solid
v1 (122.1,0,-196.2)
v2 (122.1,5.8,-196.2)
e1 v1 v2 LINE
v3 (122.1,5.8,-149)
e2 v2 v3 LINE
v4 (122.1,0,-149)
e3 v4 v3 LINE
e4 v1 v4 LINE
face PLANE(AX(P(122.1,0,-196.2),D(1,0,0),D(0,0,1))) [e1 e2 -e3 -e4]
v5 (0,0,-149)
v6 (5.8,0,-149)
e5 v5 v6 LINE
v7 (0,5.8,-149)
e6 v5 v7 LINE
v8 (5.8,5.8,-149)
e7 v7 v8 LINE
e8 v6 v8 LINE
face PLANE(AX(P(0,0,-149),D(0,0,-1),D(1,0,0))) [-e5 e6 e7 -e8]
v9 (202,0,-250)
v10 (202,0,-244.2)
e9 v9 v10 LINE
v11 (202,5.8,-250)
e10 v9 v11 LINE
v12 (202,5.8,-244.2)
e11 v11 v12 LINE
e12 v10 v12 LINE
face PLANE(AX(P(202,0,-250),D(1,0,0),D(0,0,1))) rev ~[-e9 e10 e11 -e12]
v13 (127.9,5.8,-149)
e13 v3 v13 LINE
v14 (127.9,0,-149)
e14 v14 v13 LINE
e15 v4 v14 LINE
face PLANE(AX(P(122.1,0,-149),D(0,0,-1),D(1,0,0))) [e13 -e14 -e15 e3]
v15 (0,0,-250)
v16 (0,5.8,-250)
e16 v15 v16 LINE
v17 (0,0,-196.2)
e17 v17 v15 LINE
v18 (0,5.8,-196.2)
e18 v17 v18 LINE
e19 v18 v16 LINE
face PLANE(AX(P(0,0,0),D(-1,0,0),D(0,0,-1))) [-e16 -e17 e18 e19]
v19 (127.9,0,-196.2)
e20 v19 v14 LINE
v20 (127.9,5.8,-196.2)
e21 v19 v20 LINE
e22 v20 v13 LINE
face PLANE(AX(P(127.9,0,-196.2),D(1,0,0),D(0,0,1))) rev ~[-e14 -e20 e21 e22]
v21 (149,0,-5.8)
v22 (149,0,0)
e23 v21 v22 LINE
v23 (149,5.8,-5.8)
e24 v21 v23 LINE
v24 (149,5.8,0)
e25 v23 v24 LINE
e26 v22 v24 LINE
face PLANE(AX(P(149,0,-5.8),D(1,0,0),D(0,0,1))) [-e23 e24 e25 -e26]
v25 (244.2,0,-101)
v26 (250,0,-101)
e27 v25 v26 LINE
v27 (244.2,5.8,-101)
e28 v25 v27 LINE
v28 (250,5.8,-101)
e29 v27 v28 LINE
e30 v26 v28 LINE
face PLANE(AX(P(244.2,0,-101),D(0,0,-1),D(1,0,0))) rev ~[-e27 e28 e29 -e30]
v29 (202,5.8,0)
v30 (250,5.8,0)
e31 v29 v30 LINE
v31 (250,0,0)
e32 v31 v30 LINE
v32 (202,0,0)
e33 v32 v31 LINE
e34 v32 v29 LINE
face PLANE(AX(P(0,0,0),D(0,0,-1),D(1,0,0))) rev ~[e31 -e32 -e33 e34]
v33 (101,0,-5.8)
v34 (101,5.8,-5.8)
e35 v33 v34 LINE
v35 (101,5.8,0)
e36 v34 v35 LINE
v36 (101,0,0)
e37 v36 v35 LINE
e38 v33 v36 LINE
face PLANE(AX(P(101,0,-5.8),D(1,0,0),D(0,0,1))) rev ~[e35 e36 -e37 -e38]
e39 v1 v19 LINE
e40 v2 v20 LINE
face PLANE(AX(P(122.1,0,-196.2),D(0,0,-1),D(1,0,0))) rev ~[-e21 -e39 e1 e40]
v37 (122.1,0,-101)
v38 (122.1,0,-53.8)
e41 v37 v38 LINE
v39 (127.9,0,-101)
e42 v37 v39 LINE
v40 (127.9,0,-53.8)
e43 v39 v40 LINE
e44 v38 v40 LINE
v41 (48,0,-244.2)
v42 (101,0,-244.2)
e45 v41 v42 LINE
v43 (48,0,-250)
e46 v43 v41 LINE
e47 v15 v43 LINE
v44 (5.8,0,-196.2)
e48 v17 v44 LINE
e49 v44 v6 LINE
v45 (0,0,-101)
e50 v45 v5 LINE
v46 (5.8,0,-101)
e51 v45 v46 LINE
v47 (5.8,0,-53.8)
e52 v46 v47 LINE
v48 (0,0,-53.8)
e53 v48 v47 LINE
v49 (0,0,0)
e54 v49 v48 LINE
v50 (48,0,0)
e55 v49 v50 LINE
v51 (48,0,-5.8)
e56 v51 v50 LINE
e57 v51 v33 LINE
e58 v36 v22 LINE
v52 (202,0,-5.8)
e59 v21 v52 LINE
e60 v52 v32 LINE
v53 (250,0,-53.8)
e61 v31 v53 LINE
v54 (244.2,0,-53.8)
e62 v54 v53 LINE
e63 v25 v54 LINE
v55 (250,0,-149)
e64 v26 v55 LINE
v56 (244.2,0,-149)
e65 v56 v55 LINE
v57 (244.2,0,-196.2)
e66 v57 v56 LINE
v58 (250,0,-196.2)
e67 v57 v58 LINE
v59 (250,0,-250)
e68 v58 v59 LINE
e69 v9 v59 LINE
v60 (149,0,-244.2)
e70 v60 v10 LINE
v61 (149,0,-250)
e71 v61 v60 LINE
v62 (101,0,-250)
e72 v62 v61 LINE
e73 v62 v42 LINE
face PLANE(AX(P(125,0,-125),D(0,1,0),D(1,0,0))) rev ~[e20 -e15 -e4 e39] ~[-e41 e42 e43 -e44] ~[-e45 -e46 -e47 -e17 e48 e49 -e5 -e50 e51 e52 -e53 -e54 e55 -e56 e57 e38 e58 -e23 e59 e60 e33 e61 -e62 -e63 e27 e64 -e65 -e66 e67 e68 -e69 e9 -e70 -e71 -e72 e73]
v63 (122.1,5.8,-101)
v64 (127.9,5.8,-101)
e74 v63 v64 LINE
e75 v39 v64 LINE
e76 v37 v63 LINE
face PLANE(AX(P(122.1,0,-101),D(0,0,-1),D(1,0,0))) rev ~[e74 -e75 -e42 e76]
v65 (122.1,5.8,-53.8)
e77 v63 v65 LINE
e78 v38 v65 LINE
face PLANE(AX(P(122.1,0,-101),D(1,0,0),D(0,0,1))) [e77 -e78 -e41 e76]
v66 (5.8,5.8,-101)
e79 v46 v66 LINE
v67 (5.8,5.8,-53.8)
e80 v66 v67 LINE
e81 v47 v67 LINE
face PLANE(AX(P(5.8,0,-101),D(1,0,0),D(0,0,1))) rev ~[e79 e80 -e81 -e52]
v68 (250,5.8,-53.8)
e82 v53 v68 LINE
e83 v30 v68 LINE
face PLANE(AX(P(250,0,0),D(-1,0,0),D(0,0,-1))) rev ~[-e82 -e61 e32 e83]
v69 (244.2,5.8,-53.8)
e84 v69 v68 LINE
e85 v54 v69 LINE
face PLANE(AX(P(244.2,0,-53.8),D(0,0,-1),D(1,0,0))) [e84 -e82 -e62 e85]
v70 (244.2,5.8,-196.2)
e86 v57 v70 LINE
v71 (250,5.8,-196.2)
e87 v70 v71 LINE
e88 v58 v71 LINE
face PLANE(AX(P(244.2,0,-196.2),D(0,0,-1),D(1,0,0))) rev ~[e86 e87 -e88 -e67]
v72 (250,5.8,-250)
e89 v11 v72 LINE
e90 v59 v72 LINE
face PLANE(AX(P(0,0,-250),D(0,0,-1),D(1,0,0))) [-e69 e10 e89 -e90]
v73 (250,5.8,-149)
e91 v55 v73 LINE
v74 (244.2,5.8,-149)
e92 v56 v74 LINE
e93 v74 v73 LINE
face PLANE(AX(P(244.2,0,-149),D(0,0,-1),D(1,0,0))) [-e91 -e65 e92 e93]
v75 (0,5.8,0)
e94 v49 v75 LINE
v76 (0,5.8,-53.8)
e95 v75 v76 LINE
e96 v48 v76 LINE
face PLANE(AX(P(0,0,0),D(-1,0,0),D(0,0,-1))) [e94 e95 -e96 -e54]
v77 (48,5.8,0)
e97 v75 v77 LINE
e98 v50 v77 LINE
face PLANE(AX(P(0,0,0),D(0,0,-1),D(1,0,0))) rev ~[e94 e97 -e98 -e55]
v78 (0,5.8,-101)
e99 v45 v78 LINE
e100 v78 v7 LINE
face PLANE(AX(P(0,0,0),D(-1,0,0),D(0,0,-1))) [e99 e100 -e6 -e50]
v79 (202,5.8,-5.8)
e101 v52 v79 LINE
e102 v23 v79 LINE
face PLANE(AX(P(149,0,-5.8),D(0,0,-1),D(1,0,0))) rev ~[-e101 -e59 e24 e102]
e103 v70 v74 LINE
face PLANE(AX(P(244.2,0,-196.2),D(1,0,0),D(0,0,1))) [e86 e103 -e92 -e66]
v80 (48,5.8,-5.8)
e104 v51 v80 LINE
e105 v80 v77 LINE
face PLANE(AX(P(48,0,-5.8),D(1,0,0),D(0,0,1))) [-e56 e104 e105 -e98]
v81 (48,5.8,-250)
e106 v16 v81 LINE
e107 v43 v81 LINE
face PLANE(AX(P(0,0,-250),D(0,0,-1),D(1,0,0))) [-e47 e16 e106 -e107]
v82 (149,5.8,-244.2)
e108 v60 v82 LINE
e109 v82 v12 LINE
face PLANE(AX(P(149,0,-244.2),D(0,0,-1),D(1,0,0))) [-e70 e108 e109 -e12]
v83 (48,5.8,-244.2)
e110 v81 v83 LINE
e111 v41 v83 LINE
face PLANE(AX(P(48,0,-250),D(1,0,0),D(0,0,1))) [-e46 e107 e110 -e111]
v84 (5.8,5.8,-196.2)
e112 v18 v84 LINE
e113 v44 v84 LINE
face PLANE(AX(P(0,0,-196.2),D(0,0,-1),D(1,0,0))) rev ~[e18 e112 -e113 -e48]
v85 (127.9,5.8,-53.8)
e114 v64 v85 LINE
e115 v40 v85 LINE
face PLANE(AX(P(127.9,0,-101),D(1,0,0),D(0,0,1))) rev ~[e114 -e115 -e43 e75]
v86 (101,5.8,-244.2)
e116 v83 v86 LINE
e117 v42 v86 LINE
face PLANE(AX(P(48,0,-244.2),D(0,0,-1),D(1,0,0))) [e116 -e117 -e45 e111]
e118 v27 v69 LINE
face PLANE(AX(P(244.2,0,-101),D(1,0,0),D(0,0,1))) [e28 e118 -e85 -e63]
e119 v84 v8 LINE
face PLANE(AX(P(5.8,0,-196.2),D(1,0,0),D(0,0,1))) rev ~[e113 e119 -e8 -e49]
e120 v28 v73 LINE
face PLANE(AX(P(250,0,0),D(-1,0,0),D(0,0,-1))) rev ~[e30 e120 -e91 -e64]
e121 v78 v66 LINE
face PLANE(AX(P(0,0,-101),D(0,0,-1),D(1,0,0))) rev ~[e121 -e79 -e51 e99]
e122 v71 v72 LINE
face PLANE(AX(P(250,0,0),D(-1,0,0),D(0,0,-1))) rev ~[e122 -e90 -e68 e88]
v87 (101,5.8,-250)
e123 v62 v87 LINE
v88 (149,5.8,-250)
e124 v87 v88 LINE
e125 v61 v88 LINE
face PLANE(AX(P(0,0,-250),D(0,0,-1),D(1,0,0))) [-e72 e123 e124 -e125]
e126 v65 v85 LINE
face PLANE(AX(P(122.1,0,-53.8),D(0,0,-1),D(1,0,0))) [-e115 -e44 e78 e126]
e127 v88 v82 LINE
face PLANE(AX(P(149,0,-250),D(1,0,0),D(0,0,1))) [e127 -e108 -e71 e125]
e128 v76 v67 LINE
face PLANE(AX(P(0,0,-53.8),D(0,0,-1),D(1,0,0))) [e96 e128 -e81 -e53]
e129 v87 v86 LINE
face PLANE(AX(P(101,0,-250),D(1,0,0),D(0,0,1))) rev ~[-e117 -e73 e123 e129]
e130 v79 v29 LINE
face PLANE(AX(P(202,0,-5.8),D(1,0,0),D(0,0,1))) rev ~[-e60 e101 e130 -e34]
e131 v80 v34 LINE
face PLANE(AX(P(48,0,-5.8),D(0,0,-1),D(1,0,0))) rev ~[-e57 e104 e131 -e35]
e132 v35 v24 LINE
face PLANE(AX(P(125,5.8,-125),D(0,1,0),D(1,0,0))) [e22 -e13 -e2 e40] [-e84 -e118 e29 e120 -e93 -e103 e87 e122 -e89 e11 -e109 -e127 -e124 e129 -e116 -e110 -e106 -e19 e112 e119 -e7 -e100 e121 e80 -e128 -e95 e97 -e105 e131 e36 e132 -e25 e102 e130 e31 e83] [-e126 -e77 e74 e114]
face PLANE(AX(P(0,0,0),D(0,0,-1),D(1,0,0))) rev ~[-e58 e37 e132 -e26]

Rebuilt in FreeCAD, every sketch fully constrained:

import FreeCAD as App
import Part
import Sketcher


def add_polygon(sketch, points):
    """Adds a closed chain of lines whose ends are joined by coincident constraints."""
    first, n = sketch.GeometryCount, len(points)
    for a, b in zip(points, points[1:] + points[:1]):
        sketch.addGeometry(Part.LineSegment(App.Vector(*a, 0), App.Vector(*b, 0)), False)
    for i in range(n):
        sketch.addConstraint(Sketcher.Constraint("Coincident", first + i, 2, first + (i + 1) % n, 1))

doc = App.newDocument("Part")
params = doc.addObject("Spreadsheet::Sheet", "Params")
for row, (alias, value) in enumerate([
    ("sketch1_width", "250 mm"),
    ("pad1_length", "5.8 mm"),
    ("sketch2_width", "53 mm"),
    ("sketch2_height", "5.8 mm"),
    ("sketch3_width", "53 mm"),
    ("sketch3_height", "5.8 mm"),
    ("sketch4_width", "5.8 mm"),
    ("sketch4_height", "47.2 mm"),
    ("sketch5_width", "5.8 mm"),
    ("sketch5_height", "47.2 mm"),
    ("sketch6_width", "5.8 mm"),
    ("sketch6_height", "47.2 mm"),
    ("sketch7_width", "5.8 mm"),
    ("sketch7_height", "47.2 mm"),
    ("sketch8_width", "53 mm"),
    ("sketch8_height", "5.8 mm"),
    ("sketch9_width", "53 mm"),
    ("sketch9_height", "5.8 mm"),
    ("sketch10_width", "5.8 mm"),
    ("sketch10_height", "47.2 mm"),
    ("sketch11_width", "5.8 mm"),
    ("sketch11_height", "47.2 mm"),
], start=1):
    params.set(f"A{row}", alias)
    params.set(f"B{row}", "=" + value)
    params.setAlias(f"B{row}", alias)

body = doc.addObject("PartDesign::Body", "Body")

# Sketch on XZ plane
sketch1 = body.newObject("Sketcher::SketchObject", "Sketch")
sketch1.AttachmentSupport = (doc.getObject("XZ_Plane"), [""])
sketch1.MapMode = "FlatFace"
add_polygon(sketch1, [(0, -250), (0, 0), (250, 0), (250, -250)])  # lines 0-3
sketch1.addConstraint(Sketcher.Constraint("Vertical", 0))
sketch1.addConstraint(Sketcher.Constraint("Horizontal", 1))
sketch1.addConstraint(Sketcher.Constraint("Vertical", 2))
sketch1.addConstraint(Sketcher.Constraint("Horizontal", 3))
sketch1.addConstraint(Sketcher.Constraint("Coincident", 0, 2, -1, 1))
sketch1.addConstraint(Sketcher.Constraint("Equal", 3, 0))
sketch1.addConstraint(Sketcher.Constraint("DistanceX", 1, 1, 1, 2, 250.0))
sketch1.setExpression("Constraints[10]", "Params.sketch1_width")
pad1 = body.newObject("PartDesign::Pad", "Pad")
pad1.Profile = sketch1
pad1.setExpression("Length", "Params.pad1_length")
pad1.Reversed = True

# Sketch on XZ plane
sketch2 = body.newObject("Sketcher::SketchObject", "Sketch001")
sketch2.AttachmentSupport = (doc.getObject("XZ_Plane"), [""])
sketch2.MapMode = "FlatFace"
add_polygon(sketch2, [(48, 0), (48, -6), (101, -6), (101, 0)])  # lines 0-3
sketch2.addConstraint(Sketcher.Constraint("Vertical", 0))
sketch2.addConstraint(Sketcher.Constraint("Horizontal", 1))
sketch2.addConstraint(Sketcher.Constraint("Vertical", 2))
sketch2.addConstraint(Sketcher.Constraint("Horizontal", 3))
sketch2.addConstraint(Sketcher.Constraint("PointOnObject", 2, 2, -1))
sketch2.addConstraint(Sketcher.Constraint("DistanceX", 1, 1, 1, 2, 53.0))
sketch2.addConstraint(Sketcher.Constraint("DistanceY", 0, 2, 0, 1, 5.8))
sketch2.addConstraint(Sketcher.Constraint("DistanceX", -1, 1, 0, 2, 48.0))
sketch2.setExpression("Constraints[9]", "Params.sketch2_width")
sketch2.setExpression("Constraints[10]", "Params.sketch2_height")
pocket1 = body.newObject("PartDesign::Pocket", "Pocket")
pocket1.Profile = sketch2
pocket1.Type = "UpToFirst"

# Sketch on XZ plane
sketch3 = body.newObject("Sketcher::SketchObject", "Sketch002")
sketch3.AttachmentSupport = (doc.getObject("XZ_Plane"), [""])
sketch3.MapMode = "FlatFace"
add_polygon(sketch3, [(149, 0), (149, -6), (202, -6), (202, 0)])  # lines 0-3
sketch3.addConstraint(Sketcher.Constraint("Vertical", 0))
sketch3.addConstraint(Sketcher.Constraint("Horizontal", 1))
sketch3.addConstraint(Sketcher.Constraint("Vertical", 2))
sketch3.addConstraint(Sketcher.Constraint("Horizontal", 3))
sketch3.addConstraint(Sketcher.Constraint("PointOnObject", 2, 2, -1))
sketch3.addConstraint(Sketcher.Constraint("DistanceX", 1, 1, 1, 2, 53.0))
sketch3.addConstraint(Sketcher.Constraint("DistanceY", 0, 2, 0, 1, 5.8))
sketch3.addConstraint(Sketcher.Constraint("DistanceX", -1, 1, 0, 2, 149.0))
sketch3.setExpression("Constraints[9]", "Params.sketch3_width")
sketch3.setExpression("Constraints[10]", "Params.sketch3_height")
pocket2 = body.newObject("PartDesign::Pocket", "Pocket001")
pocket2.Profile = sketch3
pocket2.Type = "UpToFirst"

# Sketch on XZ plane
sketch4 = body.newObject("Sketcher::SketchObject", "Sketch003")
sketch4.AttachmentSupport = (doc.getObject("XZ_Plane"), [""])
sketch4.MapMode = "FlatFace"
add_polygon(sketch4, [(122, -54), (122, -101), (128, -101), (128, -54)])  # lines 0-3
sketch4.addConstraint(Sketcher.Constraint("Vertical", 0))
sketch4.addConstraint(Sketcher.Constraint("Horizontal", 1))
sketch4.addConstraint(Sketcher.Constraint("Vertical", 2))
sketch4.addConstraint(Sketcher.Constraint("Horizontal", 3))
sketch4.addConstraint(Sketcher.Constraint("DistanceX", 1, 1, 1, 2, 5.8))
sketch4.addConstraint(Sketcher.Constraint("DistanceY", 0, 2, 0, 1, 47.2))
sketch4.addConstraint(Sketcher.Constraint("DistanceY", 0, 2, -1, 1, 101.0))
sketch4.addConstraint(Sketcher.Constraint("DistanceX", -1, 1, 0, 2, 122.1))
sketch4.setExpression("Constraints[8]", "Params.sketch4_width")
sketch4.setExpression("Constraints[9]", "Params.sketch4_height")
pocket3 = body.newObject("PartDesign::Pocket", "Pocket002")
pocket3.Profile = sketch4
pocket3.Type = "UpToFirst"

# Sketch on XZ plane
sketch5 = body.newObject("Sketcher::SketchObject", "Sketch004")
sketch5.AttachmentSupport = (doc.getObject("XZ_Plane"), [""])
sketch5.MapMode = "FlatFace"
add_polygon(sketch5, [(0, -54), (0, -101), (6, -101), (6, -54)])  # lines 0-3
sketch5.addConstraint(Sketcher.Constraint("Vertical", 0))
sketch5.addConstraint(Sketcher.Constraint("Horizontal", 1))
sketch5.addConstraint(Sketcher.Constraint("Vertical", 2))
sketch5.addConstraint(Sketcher.Constraint("Horizontal", 3))
sketch5.addConstraint(Sketcher.Constraint("PointOnObject", 0, 2, -2))
sketch5.addConstraint(Sketcher.Constraint("DistanceX", 1, 1, 1, 2, 5.8))
sketch5.addConstraint(Sketcher.Constraint("DistanceY", 0, 2, 0, 1, 47.2))
sketch5.addConstraint(Sketcher.Constraint("DistanceY", 0, 2, -1, 1, 101.0))
sketch5.setExpression("Constraints[9]", "Params.sketch5_width")
sketch5.setExpression("Constraints[10]", "Params.sketch5_height")
pocket4 = body.newObject("PartDesign::Pocket", "Pocket003")
pocket4.Profile = sketch5
pocket4.Type = "UpToFirst"

# Sketch on XZ plane
sketch6 = body.newObject("Sketcher::SketchObject", "Sketch005")
sketch6.AttachmentSupport = (doc.getObject("XZ_Plane"), [""])
sketch6.MapMode = "FlatFace"
add_polygon(sketch6, [(0, -149), (0, -196), (6, -196), (6, -149)])  # lines 0-3
sketch6.addConstraint(Sketcher.Constraint("Vertical", 0))
sketch6.addConstraint(Sketcher.Constraint("Horizontal", 1))
sketch6.addConstraint(Sketcher.Constraint("Vertical", 2))
sketch6.addConstraint(Sketcher.Constraint("Horizontal", 3))
sketch6.addConstraint(Sketcher.Constraint("PointOnObject", 0, 2, -2))
sketch6.addConstraint(Sketcher.Constraint("DistanceX", 1, 1, 1, 2, 5.8))
sketch6.addConstraint(Sketcher.Constraint("DistanceY", 0, 2, 0, 1, 47.2))
sketch6.addConstraint(Sketcher.Constraint("DistanceY", 2, 2, -1, 1, 149.0))
sketch6.setExpression("Constraints[9]", "Params.sketch6_width")
sketch6.setExpression("Constraints[10]", "Params.sketch6_height")
pocket5 = body.newObject("PartDesign::Pocket", "Pocket004")
pocket5.Profile = sketch6
pocket5.Type = "UpToFirst"

# Sketch on XZ plane
sketch7 = body.newObject("Sketcher::SketchObject", "Sketch006")
sketch7.AttachmentSupport = (doc.getObject("XZ_Plane"), [""])
sketch7.MapMode = "FlatFace"
add_polygon(sketch7, [(122, -149), (122, -196), (128, -196), (128, -149)])  # lines 0-3
sketch7.addConstraint(Sketcher.Constraint("Vertical", 0))
sketch7.addConstraint(Sketcher.Constraint("Horizontal", 1))
sketch7.addConstraint(Sketcher.Constraint("Vertical", 2))
sketch7.addConstraint(Sketcher.Constraint("Horizontal", 3))
sketch7.addConstraint(Sketcher.Constraint("DistanceX", 1, 1, 1, 2, 5.8))
sketch7.addConstraint(Sketcher.Constraint("DistanceY", 0, 2, 0, 1, 47.2))
sketch7.addConstraint(Sketcher.Constraint("DistanceY", 2, 2, -1, 1, 149.0))
sketch7.addConstraint(Sketcher.Constraint("DistanceX", -1, 1, 0, 2, 122.1))
sketch7.setExpression("Constraints[8]", "Params.sketch7_width")
sketch7.setExpression("Constraints[9]", "Params.sketch7_height")
pocket6 = body.newObject("PartDesign::Pocket", "Pocket005")
pocket6.Profile = sketch7
pocket6.Type = "UpToFirst"

# Sketch on XZ plane
sketch8 = body.newObject("Sketcher::SketchObject", "Sketch007")
sketch8.AttachmentSupport = (doc.getObject("XZ_Plane"), [""])
sketch8.MapMode = "FlatFace"
add_polygon(sketch8, [(48, -244), (48, -250), (101, -250), (101, -244)])  # lines 0-3
sketch8.addConstraint(Sketcher.Constraint("Vertical", 0))
sketch8.addConstraint(Sketcher.Constraint("Horizontal", 1))
sketch8.addConstraint(Sketcher.Constraint("Vertical", 2))
sketch8.addConstraint(Sketcher.Constraint("Horizontal", 3))
sketch8.addConstraint(Sketcher.Constraint("DistanceX", 1, 1, 1, 2, 53.0))
sketch8.addConstraint(Sketcher.Constraint("DistanceY", 0, 2, 0, 1, 5.8))
sketch8.addConstraint(Sketcher.Constraint("DistanceX", -1, 1, 0, 2, 48.0))
sketch8.addConstraint(Sketcher.Constraint("DistanceY", 0, 2, -1, 1, 250.0))
sketch8.setExpression("Constraints[8]", "Params.sketch8_width")
sketch8.setExpression("Constraints[9]", "Params.sketch8_height")
pocket7 = body.newObject("PartDesign::Pocket", "Pocket006")
pocket7.Profile = sketch8
pocket7.Type = "UpToFirst"

# Sketch on XZ plane
sketch9 = body.newObject("Sketcher::SketchObject", "Sketch008")
sketch9.AttachmentSupport = (doc.getObject("XZ_Plane"), [""])
sketch9.MapMode = "FlatFace"
add_polygon(sketch9, [(149, -244), (149, -250), (202, -250), (202, -244)])  # lines 0-3
sketch9.addConstraint(Sketcher.Constraint("Vertical", 0))
sketch9.addConstraint(Sketcher.Constraint("Horizontal", 1))
sketch9.addConstraint(Sketcher.Constraint("Vertical", 2))
sketch9.addConstraint(Sketcher.Constraint("Horizontal", 3))
sketch9.addConstraint(Sketcher.Constraint("DistanceX", 1, 1, 1, 2, 53.0))
sketch9.addConstraint(Sketcher.Constraint("DistanceY", 0, 2, 0, 1, 5.8))
sketch9.addConstraint(Sketcher.Constraint("DistanceX", -1, 1, 0, 2, 149.0))
sketch9.addConstraint(Sketcher.Constraint("DistanceY", 0, 2, -1, 1, 250.0))
sketch9.setExpression("Constraints[8]", "Params.sketch9_width")
sketch9.setExpression("Constraints[9]", "Params.sketch9_height")
pocket8 = body.newObject("PartDesign::Pocket", "Pocket007")
pocket8.Profile = sketch9
pocket8.Type = "UpToFirst"

# Sketch on XZ plane
sketch10 = body.newObject("Sketcher::SketchObject", "Sketch009")
sketch10.AttachmentSupport = (doc.getObject("XZ_Plane"), [""])
sketch10.MapMode = "FlatFace"
add_polygon(sketch10, [(244, -149), (244, -196), (250, -196), (250, -149)])  # lines 0-3
sketch10.addConstraint(Sketcher.Constraint("Vertical", 0))
sketch10.addConstraint(Sketcher.Constraint("Horizontal", 1))
sketch10.addConstraint(Sketcher.Constraint("Vertical", 2))
sketch10.addConstraint(Sketcher.Constraint("Horizontal", 3))
sketch10.addConstraint(Sketcher.Constraint("DistanceX", 1, 1, 1, 2, 5.8))
sketch10.addConstraint(Sketcher.Constraint("DistanceY", 0, 2, 0, 1, 47.2))
sketch10.addConstraint(Sketcher.Constraint("DistanceX", -1, 1, 1, 2, 250.0))
sketch10.addConstraint(Sketcher.Constraint("DistanceY", 2, 2, -1, 1, 149.0))
sketch10.setExpression("Constraints[8]", "Params.sketch10_width")
sketch10.setExpression("Constraints[9]", "Params.sketch10_height")
pocket9 = body.newObject("PartDesign::Pocket", "Pocket008")
pocket9.Profile = sketch10
pocket9.Type = "UpToFirst"

# Sketch on XZ plane
sketch11 = body.newObject("Sketcher::SketchObject", "Sketch010")
sketch11.AttachmentSupport = (doc.getObject("XZ_Plane"), [""])
sketch11.MapMode = "FlatFace"
add_polygon(sketch11, [(244, -54), (244, -101), (250, -101), (250, -54)])  # lines 0-3
sketch11.addConstraint(Sketcher.Constraint("Vertical", 0))
sketch11.addConstraint(Sketcher.Constraint("Horizontal", 1))
sketch11.addConstraint(Sketcher.Constraint("Vertical", 2))
sketch11.addConstraint(Sketcher.Constraint("Horizontal", 3))
sketch11.addConstraint(Sketcher.Constraint("DistanceX", 1, 1, 1, 2, 5.8))
sketch11.addConstraint(Sketcher.Constraint("DistanceY", 0, 2, 0, 1, 47.2))
sketch11.addConstraint(Sketcher.Constraint("DistanceY", 0, 2, -1, 1, 101.0))
sketch11.addConstraint(Sketcher.Constraint("DistanceX", -1, 1, 1, 2, 250.0))
sketch11.setExpression("Constraints[8]", "Params.sketch11_width")
sketch11.setExpression("Constraints[9]", "Params.sketch11_height")
pocket10 = body.newObject("PartDesign::Pocket", "Pocket009")
pocket10.Profile = sketch11
pocket10.Type = "UpToFirst"

doc.recompute()
